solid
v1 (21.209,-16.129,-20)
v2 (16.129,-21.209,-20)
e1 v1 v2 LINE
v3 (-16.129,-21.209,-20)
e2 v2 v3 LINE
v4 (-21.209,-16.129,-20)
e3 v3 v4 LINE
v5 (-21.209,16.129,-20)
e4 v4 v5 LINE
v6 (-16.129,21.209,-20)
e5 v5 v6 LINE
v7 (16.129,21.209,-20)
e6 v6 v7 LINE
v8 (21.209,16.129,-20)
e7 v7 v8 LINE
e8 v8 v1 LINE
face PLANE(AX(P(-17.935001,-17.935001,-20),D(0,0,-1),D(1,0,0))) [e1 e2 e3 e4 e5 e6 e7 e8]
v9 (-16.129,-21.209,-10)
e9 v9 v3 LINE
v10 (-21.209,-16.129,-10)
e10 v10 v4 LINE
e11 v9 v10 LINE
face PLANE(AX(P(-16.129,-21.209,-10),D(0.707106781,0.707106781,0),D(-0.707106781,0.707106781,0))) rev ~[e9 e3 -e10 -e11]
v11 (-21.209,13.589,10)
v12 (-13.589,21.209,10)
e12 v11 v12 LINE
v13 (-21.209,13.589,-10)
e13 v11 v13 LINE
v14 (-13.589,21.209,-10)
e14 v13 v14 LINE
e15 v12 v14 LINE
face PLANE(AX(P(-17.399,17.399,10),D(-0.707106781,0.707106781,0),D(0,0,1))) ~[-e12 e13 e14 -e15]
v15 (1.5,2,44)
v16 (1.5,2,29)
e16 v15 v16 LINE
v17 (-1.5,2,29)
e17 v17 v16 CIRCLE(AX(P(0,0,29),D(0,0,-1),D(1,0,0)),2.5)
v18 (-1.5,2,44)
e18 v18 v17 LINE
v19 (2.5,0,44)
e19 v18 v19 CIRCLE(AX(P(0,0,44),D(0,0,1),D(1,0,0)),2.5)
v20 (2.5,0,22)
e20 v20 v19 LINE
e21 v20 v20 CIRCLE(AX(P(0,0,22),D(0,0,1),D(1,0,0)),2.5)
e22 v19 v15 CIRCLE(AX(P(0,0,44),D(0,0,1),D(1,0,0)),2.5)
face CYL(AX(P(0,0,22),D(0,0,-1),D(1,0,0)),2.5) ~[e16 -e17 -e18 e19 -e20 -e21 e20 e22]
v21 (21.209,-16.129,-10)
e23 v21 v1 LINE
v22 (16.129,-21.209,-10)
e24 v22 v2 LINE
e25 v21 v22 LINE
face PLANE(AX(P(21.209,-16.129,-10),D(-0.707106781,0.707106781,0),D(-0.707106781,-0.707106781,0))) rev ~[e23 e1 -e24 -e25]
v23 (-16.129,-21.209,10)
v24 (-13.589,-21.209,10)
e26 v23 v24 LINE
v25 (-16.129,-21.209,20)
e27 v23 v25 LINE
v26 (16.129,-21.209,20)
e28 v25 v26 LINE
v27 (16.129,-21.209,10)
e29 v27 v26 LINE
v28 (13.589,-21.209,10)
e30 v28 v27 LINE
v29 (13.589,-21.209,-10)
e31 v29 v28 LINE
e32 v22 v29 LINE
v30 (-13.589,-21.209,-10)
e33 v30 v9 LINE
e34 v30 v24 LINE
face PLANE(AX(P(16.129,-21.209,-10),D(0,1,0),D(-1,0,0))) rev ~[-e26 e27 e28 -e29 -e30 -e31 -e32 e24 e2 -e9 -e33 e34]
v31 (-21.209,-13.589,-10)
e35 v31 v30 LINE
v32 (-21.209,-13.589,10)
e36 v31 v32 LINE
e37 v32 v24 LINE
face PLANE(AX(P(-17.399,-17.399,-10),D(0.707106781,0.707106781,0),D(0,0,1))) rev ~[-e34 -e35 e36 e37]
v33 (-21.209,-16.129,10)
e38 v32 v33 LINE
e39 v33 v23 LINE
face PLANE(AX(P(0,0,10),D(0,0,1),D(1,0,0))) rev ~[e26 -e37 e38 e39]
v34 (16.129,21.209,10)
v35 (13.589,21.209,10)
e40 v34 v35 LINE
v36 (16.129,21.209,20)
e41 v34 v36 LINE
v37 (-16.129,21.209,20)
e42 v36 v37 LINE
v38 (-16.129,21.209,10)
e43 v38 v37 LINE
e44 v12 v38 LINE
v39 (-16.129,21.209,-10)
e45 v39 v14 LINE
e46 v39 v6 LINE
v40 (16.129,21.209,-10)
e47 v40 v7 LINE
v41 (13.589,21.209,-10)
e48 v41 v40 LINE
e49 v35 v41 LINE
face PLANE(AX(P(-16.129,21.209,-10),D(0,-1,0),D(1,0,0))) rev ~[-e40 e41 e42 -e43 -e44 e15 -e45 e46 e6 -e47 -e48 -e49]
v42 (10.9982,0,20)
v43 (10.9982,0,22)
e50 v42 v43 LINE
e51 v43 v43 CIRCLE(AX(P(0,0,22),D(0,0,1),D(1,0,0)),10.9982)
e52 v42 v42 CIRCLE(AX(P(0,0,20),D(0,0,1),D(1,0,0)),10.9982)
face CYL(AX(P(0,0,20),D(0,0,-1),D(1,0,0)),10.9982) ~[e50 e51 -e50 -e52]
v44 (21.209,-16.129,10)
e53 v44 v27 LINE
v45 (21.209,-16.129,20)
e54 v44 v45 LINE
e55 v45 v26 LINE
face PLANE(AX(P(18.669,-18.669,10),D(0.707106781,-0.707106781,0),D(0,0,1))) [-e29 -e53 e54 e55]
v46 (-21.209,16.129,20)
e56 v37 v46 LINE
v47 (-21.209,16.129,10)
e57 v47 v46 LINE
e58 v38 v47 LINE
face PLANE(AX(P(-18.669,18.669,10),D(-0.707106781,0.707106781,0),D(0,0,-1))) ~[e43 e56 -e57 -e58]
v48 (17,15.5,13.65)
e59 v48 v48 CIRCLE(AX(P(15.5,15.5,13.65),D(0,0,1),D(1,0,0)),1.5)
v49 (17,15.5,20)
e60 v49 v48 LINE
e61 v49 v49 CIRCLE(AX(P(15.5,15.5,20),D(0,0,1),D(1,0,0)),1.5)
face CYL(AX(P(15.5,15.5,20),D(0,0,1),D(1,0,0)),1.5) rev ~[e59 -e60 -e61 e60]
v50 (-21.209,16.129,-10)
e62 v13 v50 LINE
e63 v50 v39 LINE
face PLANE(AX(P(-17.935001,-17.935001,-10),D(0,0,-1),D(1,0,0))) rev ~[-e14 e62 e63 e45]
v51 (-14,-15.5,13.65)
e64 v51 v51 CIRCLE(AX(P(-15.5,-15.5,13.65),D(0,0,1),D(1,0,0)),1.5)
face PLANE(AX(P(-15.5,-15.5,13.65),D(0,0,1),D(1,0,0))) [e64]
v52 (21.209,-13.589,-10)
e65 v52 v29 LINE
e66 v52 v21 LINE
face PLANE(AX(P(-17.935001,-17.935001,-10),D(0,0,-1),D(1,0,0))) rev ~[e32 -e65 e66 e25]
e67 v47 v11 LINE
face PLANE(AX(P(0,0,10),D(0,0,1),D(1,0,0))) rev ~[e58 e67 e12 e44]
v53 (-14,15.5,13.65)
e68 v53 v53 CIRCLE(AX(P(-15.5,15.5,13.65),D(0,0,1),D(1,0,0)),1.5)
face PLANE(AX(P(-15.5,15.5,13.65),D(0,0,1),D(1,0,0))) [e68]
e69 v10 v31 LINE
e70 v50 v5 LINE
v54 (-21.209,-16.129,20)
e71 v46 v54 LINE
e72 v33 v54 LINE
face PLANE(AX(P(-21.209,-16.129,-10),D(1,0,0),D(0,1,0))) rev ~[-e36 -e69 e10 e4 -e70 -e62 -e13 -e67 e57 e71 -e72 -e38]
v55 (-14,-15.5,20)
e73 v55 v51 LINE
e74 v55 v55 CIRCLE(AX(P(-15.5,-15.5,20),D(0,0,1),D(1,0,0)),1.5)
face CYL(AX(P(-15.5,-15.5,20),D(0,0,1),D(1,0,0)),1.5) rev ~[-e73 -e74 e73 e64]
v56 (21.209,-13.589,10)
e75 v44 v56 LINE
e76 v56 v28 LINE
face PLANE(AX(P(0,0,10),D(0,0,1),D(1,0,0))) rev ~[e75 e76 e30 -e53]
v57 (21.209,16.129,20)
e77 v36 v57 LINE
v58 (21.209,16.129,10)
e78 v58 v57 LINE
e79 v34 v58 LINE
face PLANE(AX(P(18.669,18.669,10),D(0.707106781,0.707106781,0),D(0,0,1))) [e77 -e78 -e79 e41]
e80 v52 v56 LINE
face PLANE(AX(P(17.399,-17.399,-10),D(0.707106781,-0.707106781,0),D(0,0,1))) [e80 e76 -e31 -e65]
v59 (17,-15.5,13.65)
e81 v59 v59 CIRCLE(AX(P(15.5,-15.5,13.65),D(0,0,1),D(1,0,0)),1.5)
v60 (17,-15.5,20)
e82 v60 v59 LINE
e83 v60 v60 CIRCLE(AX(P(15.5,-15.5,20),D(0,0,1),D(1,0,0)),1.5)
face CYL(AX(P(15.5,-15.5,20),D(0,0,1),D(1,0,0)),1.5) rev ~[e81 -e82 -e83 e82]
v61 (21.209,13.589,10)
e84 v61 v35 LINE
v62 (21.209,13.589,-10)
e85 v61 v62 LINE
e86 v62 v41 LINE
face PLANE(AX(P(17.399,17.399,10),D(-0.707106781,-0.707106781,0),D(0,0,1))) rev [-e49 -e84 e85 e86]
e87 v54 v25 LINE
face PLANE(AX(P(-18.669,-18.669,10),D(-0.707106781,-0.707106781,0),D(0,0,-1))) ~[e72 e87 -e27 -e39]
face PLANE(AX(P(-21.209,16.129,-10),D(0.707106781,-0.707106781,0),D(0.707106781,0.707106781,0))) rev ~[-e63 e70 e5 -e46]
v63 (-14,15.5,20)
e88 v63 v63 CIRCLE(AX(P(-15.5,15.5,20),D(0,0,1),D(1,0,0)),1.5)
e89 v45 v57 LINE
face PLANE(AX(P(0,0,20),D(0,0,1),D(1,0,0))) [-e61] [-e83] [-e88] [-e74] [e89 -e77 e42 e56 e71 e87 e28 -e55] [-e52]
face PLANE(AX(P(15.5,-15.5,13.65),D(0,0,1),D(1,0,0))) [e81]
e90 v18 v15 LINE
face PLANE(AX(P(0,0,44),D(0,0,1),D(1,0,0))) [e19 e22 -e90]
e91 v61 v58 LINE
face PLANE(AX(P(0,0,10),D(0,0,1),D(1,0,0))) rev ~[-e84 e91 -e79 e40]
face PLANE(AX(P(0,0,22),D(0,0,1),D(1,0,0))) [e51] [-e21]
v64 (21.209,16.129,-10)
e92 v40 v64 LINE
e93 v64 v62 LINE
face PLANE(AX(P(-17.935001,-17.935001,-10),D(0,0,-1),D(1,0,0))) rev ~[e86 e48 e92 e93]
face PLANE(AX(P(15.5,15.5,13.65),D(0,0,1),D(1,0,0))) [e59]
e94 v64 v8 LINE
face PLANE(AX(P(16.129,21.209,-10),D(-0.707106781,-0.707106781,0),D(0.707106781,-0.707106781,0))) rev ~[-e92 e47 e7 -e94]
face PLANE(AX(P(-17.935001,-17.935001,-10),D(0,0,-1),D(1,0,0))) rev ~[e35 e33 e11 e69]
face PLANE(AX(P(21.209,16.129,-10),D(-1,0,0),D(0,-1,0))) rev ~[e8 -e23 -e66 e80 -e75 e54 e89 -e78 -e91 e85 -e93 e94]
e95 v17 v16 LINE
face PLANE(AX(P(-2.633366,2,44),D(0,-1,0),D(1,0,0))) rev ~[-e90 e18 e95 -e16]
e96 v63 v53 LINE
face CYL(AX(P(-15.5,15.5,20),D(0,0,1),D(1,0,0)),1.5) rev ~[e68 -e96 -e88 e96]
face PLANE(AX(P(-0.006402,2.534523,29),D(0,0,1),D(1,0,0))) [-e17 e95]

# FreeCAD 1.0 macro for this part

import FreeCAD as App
import Part
import Sketcher
from FreeCAD import Vector
Q = App.Units.Quantity


def edges_at(feature, points):
    """Names of the edges that pass closest to the given points."""
    edges = feature.Shape.Edges
    near = lambda p: min(range(len(edges)), key=lambda i: edges[i].distToShape(Part.Vertex(*p))[0])
    return sorted({f"Edge{near(p) + 1}" for p in points})

doc = App.newDocument("Part")
body = doc.addObject("PartDesign::Body", "Body")

sketch1 = body.newObject("Sketcher::SketchObject", "Sketch")
sketch1.AttachmentSupport = (doc.getObject("XY_Plane"), [""])
sketch1.MapMode = "FlatFace"
sketch1.addGeometry([
    Part.LineSegment(Vector(-21, 21, 0), Vector(-21, -21, 0)),
    Part.LineSegment(Vector(-21, -21, 0), Vector(21, -21, 0)),
    Part.LineSegment(Vector(21, -21, 0), Vector(21, 21, 0)),
    Part.LineSegment(Vector(21, 21, 0), Vector(-21, 21, 0)),
], False)
sketch1.addConstraint([
    Sketcher.Constraint("Coincident", 0, 2, 1, 1),
    Sketcher.Constraint("Coincident", 1, 2, 2, 1),
    Sketcher.Constraint("Coincident", 2, 2, 3, 1),
    Sketcher.Constraint("Coincident", 3, 2, 0, 1),
    Sketcher.Constraint("Vertical", 0),
    Sketcher.Constraint("Horizontal", 1),
    Sketcher.Constraint("Vertical", 2),
    Sketcher.Constraint("Horizontal", 3),
    Sketcher.Constraint("Symmetric", 0, 2, 2, 2, -1, 1),
    Sketcher.Constraint("Equal", 3, 0),
    Sketcher.Constraint("DistanceX", 1, 1, 1, 2, Q("42.418 mm")),
])
pad1 = body.newObject("PartDesign::Pad", "Pad")
pad1.Profile = sketch1
pad1.Length = 20
pad1.Midplane = True
doc.recompute()

chamfer = body.newObject("PartDesign::Chamfer", "Chamfer")
chamfer.Base = (pad1, edges_at(pad1, [
    (21.209, 21.209, 0),
    (-21.209, 21.209, 0),
    (-21.209, -21.209, 0),
    (21.209, -21.209, 0),
]))
chamfer.Size = 7.62

sketch2 = body.newObject("Sketcher::SketchObject", "Sketch001")
sketch2.AttachmentSupport = (doc.getObject("XY_Plane"), [""])
sketch2.MapMode = "FlatFace"
sketch2.AttachmentOffset = App.Placement(Vector(0, 0, 10), App.Rotation())
sketch2.addGeometry([
    Part.LineSegment(Vector(21, 21, 0), Vector(-21, 21, 0)),
    Part.LineSegment(Vector(-21, 21, 0), Vector(-21, -21, 0)),
    Part.LineSegment(Vector(-21, -21, 0), Vector(21, -21, 0)),
    Part.LineSegment(Vector(21, -21, 0), Vector(21, 21, 0)),
], False)
sketch2.addConstraint([
    Sketcher.Constraint("Coincident", 0, 2, 1, 1),
    Sketcher.Constraint("Coincident", 1, 2, 2, 1),
    Sketcher.Constraint("Coincident", 2, 2, 3, 1),
    Sketcher.Constraint("Coincident", 3, 2, 0, 1),
    Sketcher.Constraint("Horizontal", 0),
    Sketcher.Constraint("Vertical", 1),
    Sketcher.Constraint("Horizontal", 2),
    Sketcher.Constraint("Vertical", 3),
    Sketcher.Constraint("Symmetric", 0, 2, 2, 2, -1, 1),
    Sketcher.Constraint("Equal", 2, 1),
    Sketcher.Constraint("DistanceX", 0, 2, 0, 1, Q("42.418 mm")),
])
pad2 = body.newObject("PartDesign::Pad", "Pad001")
pad2.Profile = sketch2
pad2.Length = 10
doc.recompute()

chamfer2 = body.newObject("PartDesign::Chamfer", "Chamfer001")
chamfer2.Base = (pad2, edges_at(pad2, [
    (21.209, 21.209, 15),
    (-21.209, 21.209, 15),
    (-21.209, -21.209, 15),
    (21.209, -21.209, 15),
]))
chamfer2.Size = 5.08

sketch3 = body.newObject("Sketcher::SketchObject", "Sketch002")
sketch3.AttachmentSupport = (doc.getObject("XY_Plane"), [""])
sketch3.MapMode = "FlatFace"
sketch3.AttachmentOffset = App.Placement(Vector(0, 0, -10), App.Rotation())
sketch3.addGeometry([
    Part.LineSegment(Vector(-16, -21, 0), Vector(-21, -16, 0)),
    Part.LineSegment(Vector(-21, -16, 0), Vector(-21, 16, 0)),
    Part.LineSegment(Vector(-21, 16, 0), Vector(-16, 21, 0)),
    Part.LineSegment(Vector(-16, 21, 0), Vector(16, 21, 0)),
    Part.LineSegment(Vector(16, 21, 0), Vector(21, 16, 0)),
    Part.LineSegment(Vector(21, 16, 0), Vector(21, -16, 0)),
    Part.LineSegment(Vector(21, -16, 0), Vector(16, -21, 0)),
    Part.LineSegment(Vector(16, -21, 0), Vector(-16, -21, 0)),
], False)
sketch3.addConstraint([
    Sketcher.Constraint("Coincident", 0, 2, 1, 1),
    Sketcher.Constraint("Coincident", 1, 2, 2, 1),
    Sketcher.Constraint("Coincident", 2, 2, 3, 1),
    Sketcher.Constraint("Coincident", 3, 2, 4, 1),
    Sketcher.Constraint("Coincident", 4, 2, 5, 1),
    Sketcher.Constraint("Coincident", 5, 2, 6, 1),
    Sketcher.Constraint("Coincident", 6, 2, 7, 1),
    Sketcher.Constraint("Coincident", 7, 2, 0, 1),
    Sketcher.Constraint("Vertical", 1),
    Sketcher.Constraint("Horizontal", 3),
    Sketcher.Constraint("Vertical", 5),
    Sketcher.Constraint("Horizontal", 7),
    Sketcher.Constraint("Symmetric", 0, 2, 4, 2, -1, 1),
    Sketcher.Constraint("Symmetric", 2, 2, 6, 2, -1, 1),
    Sketcher.Constraint("Perpendicular", 0, 2),
    Sketcher.Constraint("Perpendicular", 2, 4),
    Sketcher.Constraint("Perpendicular", 4, 6),
    Sketcher.Constraint("Horizontal", 1, 2, 4, 2),
    Sketcher.Constraint("Vertical", 3, 2, 6, 2),
    Sketcher.Constraint("Equal", 7, 1),
    Sketcher.Constraint("DistanceX", 3, 1, 3, 2, Q("32.258 mm")),
    Sketcher.Constraint("DistanceX", 1, 2, 2, 2, Q("5.08 mm")),
])
pad3 = body.newObject("PartDesign::Pad", "Pad002")
pad3.Profile = sketch3
pad3.Length = 10
pad3.Reversed = True

sketch4 = body.newObject("Sketcher::SketchObject", "Sketch003")
sketch4.AttachmentSupport = (doc.getObject("XY_Plane"), [""])
sketch4.MapMode = "FlatFace"
sketch4.AttachmentOffset = App.Placement(Vector(0, 0, 20), App.Rotation())
sketch4.addGeometry(Part.Circle(Vector(0, 0, 0), Vector(0, 0, 1), 11), False)
sketch4.addConstraint([
    Sketcher.Constraint("Coincident", 0, 3, -1, 1),
    Sketcher.Constraint("Diameter", 0, Q("21.9964 mm")),
])
pad4 = body.newObject("PartDesign::Pad", "Pad003")
pad4.Profile = sketch4
pad4.Length = 2

sketch5 = body.newObject("Sketcher::SketchObject", "Sketch004")
sketch5.AttachmentSupport = (doc.getObject("XY_Plane"), [""])
sketch5.MapMode = "FlatFace"
sketch5.AttachmentOffset = App.Placement(Vector(0, 0, 22), App.Rotation())
sketch5.addGeometry(Part.Circle(Vector(0, 0, 0), Vector(0, 0, 1), 2.5), False)
sketch5.addConstraint([
    Sketcher.Constraint("Coincident", 0, 3, -1, 1),
    Sketcher.Constraint("Diameter", 0, Q("5 mm")),
])
pad5 = body.newObject("PartDesign::Pad", "Pad004")
pad5.Profile = sketch5
pad5.Length = 22

sketch6 = body.newObject("Sketcher::SketchObject", "Sketch005")
sketch6.AttachmentSupport = (doc.getObject("XY_Plane"), [""])
sketch6.MapMode = "FlatFace"
sketch6.AttachmentOffset = App.Placement(Vector(0, 0, 44), App.Rotation())
sketch6.addGeometry([
    Part.LineSegment(Vector(2.6, 2.9, 0), Vector(-2.6, 2.9, 0)),
    Part.LineSegment(Vector(-2.6, 2.9, 0), Vector(-2.6, 2, 0)),
    Part.LineSegment(Vector(-2.6, 2, 0), Vector(2.6, 2, 0)),
    Part.LineSegment(Vector(2.6, 2, 0), Vector(2.6, 2.9, 0)),
], False)
sketch6.addConstraint([
    Sketcher.Constraint("Coincident", 0, 2, 1, 1),
    Sketcher.Constraint("Coincident", 1, 2, 2, 1),
    Sketcher.Constraint("Coincident", 2, 2, 3, 1),
    Sketcher.Constraint("Coincident", 3, 2, 0, 1),
    Sketcher.Constraint("Horizontal", 0),
    Sketcher.Constraint("Vertical", 1),
    Sketcher.Constraint("Horizontal", 2),
    Sketcher.Constraint("Vertical", 3),
    Sketcher.Constraint("DistanceY", -1, 1, 1, 2, Q("2 mm")),
    Sketcher.Constraint("DistanceX", 0, 2, 0, 1, Q("5.253729 mm")),
    Sketcher.Constraint("DistanceY", 1, 2, 1, 1, Q("0.933404 mm")),
    Sketcher.Constraint("DistanceX", 0, 2, -1, 1, Q("2.633366 mm")),
])
pocket1 = body.newObject("PartDesign::Pocket", "Pocket")
pocket1.Profile = sketch6
pocket1.Length = 15

sketch7 = body.newObject("Sketcher::SketchObject", "Sketch006")
sketch7.AttachmentSupport = (doc.getObject("XY_Plane"), [""])
sketch7.MapMode = "FlatFace"
sketch7.AttachmentOffset = App.Placement(Vector(0, 0, 20), App.Rotation())
sketch7.addGeometry([
    Part.Circle(Vector(-15.5, 15.5, 0), Vector(0, 0, 1), 1.5),
    Part.Circle(Vector(15.5, 15.5, 0), Vector(0, 0, 1), 1.5),
    Part.Circle(Vector(15.5, -15.5, 0), Vector(0, 0, 1), 1.5),
    Part.Circle(Vector(-15.5, -15.5, 0), Vector(0, 0, 1), 1.5),
], False)
sketch7.addConstraint([
    Sketcher.Constraint("Equal", 0, 1),
    Sketcher.Constraint("Equal", 1, 2),
    Sketcher.Constraint("Equal", 2, 3),
    Sketcher.Constraint("Symmetric", 0, 3, 2, 3, -1, 1),
    Sketcher.Constraint("Symmetric", 1, 3, 3, 3, -1, 1),
    Sketcher.Constraint("Symmetric", 0, 3, 1, 3, -2),
    Sketcher.Constraint("Diameter", 0, Q("3 mm")),
    Sketcher.Constraint("DistanceX", 0, 3, 1, 3, Q("31 mm")),
    Sketcher.Constraint("DistanceY", 2, 3, 1, 3, Q("31 mm")),
])
pocket2 = body.newObject("PartDesign::Pocket", "Pocket001")
pocket2.Profile = sketch7
pocket2.Length = 6.35
body2 = doc.addObject("PartDesign::Body", "Body001")
doc.recompute()

body2.BaseFeature = body
doc.recompute()
body.Visibility = False

doc.recompute()
